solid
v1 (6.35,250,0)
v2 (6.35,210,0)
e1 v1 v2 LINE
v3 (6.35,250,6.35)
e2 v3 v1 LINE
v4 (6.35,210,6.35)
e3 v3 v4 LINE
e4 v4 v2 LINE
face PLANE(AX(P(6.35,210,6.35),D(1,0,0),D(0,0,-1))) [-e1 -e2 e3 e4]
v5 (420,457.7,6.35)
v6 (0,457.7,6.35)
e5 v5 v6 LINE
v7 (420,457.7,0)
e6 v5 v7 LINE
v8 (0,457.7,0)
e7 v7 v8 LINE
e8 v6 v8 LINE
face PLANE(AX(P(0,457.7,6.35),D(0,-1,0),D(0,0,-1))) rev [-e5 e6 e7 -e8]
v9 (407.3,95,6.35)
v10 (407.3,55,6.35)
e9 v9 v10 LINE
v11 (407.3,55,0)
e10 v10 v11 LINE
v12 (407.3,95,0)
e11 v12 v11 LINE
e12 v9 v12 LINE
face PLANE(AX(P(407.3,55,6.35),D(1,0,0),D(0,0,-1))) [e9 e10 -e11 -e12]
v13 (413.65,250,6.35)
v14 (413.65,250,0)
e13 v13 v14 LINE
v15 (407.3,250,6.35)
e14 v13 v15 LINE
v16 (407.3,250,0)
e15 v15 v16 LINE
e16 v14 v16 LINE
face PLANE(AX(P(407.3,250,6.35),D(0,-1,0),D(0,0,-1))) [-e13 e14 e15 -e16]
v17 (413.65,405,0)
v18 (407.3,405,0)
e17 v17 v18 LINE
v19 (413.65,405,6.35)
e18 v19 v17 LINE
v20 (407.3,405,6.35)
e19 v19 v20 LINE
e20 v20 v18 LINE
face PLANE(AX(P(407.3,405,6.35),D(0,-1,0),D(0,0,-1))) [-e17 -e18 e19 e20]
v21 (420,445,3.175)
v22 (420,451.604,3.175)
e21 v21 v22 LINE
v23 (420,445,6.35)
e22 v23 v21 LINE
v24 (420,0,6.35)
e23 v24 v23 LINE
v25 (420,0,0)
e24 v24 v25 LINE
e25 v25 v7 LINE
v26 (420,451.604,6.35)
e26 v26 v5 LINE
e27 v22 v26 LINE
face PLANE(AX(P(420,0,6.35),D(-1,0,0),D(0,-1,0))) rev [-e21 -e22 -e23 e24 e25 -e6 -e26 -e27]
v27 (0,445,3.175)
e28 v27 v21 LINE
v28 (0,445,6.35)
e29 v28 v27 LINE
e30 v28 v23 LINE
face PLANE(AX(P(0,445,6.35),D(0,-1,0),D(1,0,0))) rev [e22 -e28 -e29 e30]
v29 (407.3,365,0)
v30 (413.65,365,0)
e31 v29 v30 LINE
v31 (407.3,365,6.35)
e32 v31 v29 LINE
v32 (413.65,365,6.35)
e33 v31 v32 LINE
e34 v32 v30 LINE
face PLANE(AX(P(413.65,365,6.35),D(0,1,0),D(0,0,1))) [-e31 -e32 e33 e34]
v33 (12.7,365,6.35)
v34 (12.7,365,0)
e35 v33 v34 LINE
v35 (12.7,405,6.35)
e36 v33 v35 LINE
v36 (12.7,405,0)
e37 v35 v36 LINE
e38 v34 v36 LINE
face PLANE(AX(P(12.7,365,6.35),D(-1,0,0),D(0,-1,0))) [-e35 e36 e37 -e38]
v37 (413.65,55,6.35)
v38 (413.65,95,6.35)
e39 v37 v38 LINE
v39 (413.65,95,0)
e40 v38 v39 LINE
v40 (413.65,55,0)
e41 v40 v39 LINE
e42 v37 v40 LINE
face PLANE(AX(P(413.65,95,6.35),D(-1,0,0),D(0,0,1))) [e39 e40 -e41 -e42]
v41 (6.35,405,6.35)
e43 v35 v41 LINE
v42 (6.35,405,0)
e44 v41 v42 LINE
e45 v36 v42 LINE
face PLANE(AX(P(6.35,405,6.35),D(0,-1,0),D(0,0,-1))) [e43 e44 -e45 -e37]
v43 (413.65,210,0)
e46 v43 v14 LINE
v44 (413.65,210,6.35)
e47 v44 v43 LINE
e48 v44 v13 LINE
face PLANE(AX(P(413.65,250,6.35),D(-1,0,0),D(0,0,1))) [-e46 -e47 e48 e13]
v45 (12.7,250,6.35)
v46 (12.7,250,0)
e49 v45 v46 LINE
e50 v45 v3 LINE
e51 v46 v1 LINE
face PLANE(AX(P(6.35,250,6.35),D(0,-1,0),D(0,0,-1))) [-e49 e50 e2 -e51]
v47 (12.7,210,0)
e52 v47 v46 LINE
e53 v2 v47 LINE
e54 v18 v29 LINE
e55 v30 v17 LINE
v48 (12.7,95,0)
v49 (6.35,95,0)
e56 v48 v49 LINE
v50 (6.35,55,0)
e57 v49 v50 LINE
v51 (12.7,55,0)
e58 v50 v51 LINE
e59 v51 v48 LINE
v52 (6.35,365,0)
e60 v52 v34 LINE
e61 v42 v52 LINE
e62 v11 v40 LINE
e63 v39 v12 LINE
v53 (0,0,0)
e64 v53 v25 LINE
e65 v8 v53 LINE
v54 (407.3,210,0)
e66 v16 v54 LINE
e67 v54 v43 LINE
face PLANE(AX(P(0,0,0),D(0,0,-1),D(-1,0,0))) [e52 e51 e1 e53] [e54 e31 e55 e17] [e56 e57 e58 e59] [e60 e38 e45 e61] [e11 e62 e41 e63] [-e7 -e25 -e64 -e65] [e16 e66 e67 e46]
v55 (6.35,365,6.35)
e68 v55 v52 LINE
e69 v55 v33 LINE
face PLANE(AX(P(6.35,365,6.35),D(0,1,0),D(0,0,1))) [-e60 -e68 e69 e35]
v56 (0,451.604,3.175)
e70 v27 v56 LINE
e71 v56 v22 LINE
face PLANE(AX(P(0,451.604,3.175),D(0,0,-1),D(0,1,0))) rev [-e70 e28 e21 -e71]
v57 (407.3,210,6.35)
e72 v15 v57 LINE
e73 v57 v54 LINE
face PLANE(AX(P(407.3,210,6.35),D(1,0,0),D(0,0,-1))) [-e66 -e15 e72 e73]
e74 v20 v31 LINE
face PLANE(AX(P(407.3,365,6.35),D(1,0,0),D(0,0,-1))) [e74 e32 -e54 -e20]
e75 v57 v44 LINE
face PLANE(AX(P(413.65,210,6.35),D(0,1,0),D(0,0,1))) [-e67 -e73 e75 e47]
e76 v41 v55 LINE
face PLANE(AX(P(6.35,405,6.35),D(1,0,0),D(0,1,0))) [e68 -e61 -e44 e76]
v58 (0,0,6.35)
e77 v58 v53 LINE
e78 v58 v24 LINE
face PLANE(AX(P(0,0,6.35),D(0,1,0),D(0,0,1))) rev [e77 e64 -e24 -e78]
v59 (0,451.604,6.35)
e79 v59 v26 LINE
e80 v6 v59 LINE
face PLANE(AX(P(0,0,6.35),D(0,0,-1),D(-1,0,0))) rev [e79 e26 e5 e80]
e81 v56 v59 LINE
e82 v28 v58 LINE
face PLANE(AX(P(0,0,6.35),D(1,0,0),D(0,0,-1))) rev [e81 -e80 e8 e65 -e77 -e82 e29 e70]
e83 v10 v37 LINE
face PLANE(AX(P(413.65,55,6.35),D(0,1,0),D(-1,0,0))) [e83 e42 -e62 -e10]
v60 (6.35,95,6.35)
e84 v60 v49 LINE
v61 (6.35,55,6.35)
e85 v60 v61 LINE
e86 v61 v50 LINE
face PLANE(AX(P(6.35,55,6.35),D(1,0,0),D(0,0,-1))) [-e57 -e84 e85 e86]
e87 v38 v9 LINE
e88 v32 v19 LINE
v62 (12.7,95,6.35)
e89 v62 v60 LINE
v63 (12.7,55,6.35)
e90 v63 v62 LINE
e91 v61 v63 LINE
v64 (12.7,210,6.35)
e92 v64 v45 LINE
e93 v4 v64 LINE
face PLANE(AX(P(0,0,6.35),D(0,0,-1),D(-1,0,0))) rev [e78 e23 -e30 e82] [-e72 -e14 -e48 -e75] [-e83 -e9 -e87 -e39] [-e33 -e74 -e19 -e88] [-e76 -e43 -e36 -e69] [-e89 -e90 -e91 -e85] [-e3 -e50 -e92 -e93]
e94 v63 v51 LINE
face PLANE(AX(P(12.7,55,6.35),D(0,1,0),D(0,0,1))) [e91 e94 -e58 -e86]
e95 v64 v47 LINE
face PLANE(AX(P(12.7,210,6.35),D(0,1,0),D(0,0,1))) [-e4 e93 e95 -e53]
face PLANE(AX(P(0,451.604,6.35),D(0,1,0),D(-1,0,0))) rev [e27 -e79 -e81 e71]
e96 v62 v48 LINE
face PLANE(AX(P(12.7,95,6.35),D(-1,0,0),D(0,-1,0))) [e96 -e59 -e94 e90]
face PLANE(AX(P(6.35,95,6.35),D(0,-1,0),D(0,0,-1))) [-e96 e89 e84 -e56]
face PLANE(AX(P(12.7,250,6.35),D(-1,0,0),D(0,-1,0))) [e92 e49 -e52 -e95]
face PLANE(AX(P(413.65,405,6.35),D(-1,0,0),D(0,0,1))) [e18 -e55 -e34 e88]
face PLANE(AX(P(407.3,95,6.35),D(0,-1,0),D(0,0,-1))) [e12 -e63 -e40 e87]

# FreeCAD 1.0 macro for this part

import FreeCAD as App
import Part
import Sketcher

V = App.Vector
Q = App.Units.Quantity


def add_polygon(sketch, points):
    """Adds a closed chain of lines whose ends are joined by coincident constraints."""
    first, n = sketch.GeometryCount, len(points)
    for a, b in zip(points, points[1:] + points[:1]):
        sketch.addGeometry(Part.LineSegment(App.Vector(*a, 0), App.Vector(*b, 0)), False)
    for i in range(n):
        sketch.addConstraint(Sketcher.Constraint("Coincident", first + i, 2, first + (i + 1) % n, 1))

doc = App.newDocument("Part")
params = doc.addObject("Spreadsheet::Sheet", "Params")
for row, (alias, value) in enumerate([
    ("sketch1_width", "420 mm"),
    ("sketch1_height", "40 mm"),
    ("sketch1_height2", "457.7 mm"),
    ("sketch1_width2", "6.35 mm"),
    ("pad1_length", "6.35 mm"),
], start=1):
    params.set(f"A{row}", alias)
    params.set(f"B{row}", "=" + value)
    params.setAlias(f"B{row}", alias)

body = doc.addObject("PartDesign::Body", "Body")

# Sketch on XY plane
sketch1 = body.newObject("Sketcher::SketchObject", "Sketch")
sketch1.AttachmentSupport = (doc.getObject("XY_Plane"), [""])
sketch1.MapMode = "FlatFace"
add_polygon(sketch1, [(0, 0), (420, 0), (420, 458), (0, 458)])  # lines 0-3
add_polygon(sketch1, [(13, 55), (6, 55), (6, 95), (13, 95)])  # lines 4-7
add_polygon(sketch1, [(414, 55), (407, 55), (407, 95), (414, 95)])  # lines 8-11
add_polygon(sketch1, [(13, 210), (6, 210), (6, 250), (13, 250)])  # lines 12-15
add_polygon(sketch1, [(13, 365), (6, 365), (6, 405), (13, 405)])  # lines 16-19
add_polygon(sketch1, [(414, 210), (407, 210), (407, 250), (414, 250)])  # lines 20-23
add_polygon(sketch1, [(414, 365), (407, 365), (407, 405), (414, 405)])  # lines 24-27
sketch1.addConstraint([
    Sketcher.Constraint("Horizontal", 0),
    Sketcher.Constraint("Vertical", 1),
    Sketcher.Constraint("Horizontal", 2),
    Sketcher.Constraint("Vertical", 3),
    Sketcher.Constraint("Horizontal", 4),
    Sketcher.Constraint("Vertical", 5),
    Sketcher.Constraint("Horizontal", 6),
    Sketcher.Constraint("Vertical", 7),
    Sketcher.Constraint("Horizontal", 8),
    Sketcher.Constraint("Vertical", 9),
    Sketcher.Constraint("Horizontal", 10),
    Sketcher.Constraint("Vertical", 11),
    Sketcher.Constraint("Horizontal", 12),
    Sketcher.Constraint("Vertical", 13),
    Sketcher.Constraint("Horizontal", 14),
    Sketcher.Constraint("Vertical", 15),
    Sketcher.Constraint("Horizontal", 16),
    Sketcher.Constraint("Vertical", 17),
    Sketcher.Constraint("Horizontal", 18),
    Sketcher.Constraint("Vertical", 19),
    Sketcher.Constraint("Horizontal", 20),
    Sketcher.Constraint("Vertical", 21),
    Sketcher.Constraint("Horizontal", 22),
    Sketcher.Constraint("Vertical", 23),
    Sketcher.Constraint("Horizontal", 24),
    Sketcher.Constraint("Vertical", 25),
    Sketcher.Constraint("Horizontal", 26),
    Sketcher.Constraint("Vertical", 27),
    Sketcher.Constraint("Coincident", 3, 2, -1, 1),
    Sketcher.Constraint("Horizontal", 7, 2, 8, 2),
    Sketcher.Constraint("Horizontal", 6, 2, 9, 2),
    Sketcher.Constraint("Horizontal", 15, 2, 20, 2),
    Sketcher.Constraint("Horizontal", 14, 2, 21, 2),
    Sketcher.Constraint("Horizontal", 19, 2, 24, 2),
    Sketcher.Constraint("Horizontal", 18, 2, 25, 2),
    Sketcher.Constraint("Vertical", 5, 2, 12, 2),
    Sketcher.Constraint("Vertical", 7, 2, 14, 2),
    Sketcher.Constraint("Vertical", 13, 2, 16, 2),
    Sketcher.Constraint("Vertical", 15, 2, 18, 2),
    Sketcher.Constraint("Vertical", 9, 2, 20, 2),
    Sketcher.Constraint("Vertical", 11, 2, 22, 2),
    Sketcher.Constraint("Vertical", 21, 2, 24, 2),
    Sketcher.Constraint("Vertical", 23, 2, 26, 2),
    Sketcher.Constraint("Equal", 6, 8),
    Sketcher.Constraint("Equal", 11, 13),
    Sketcher.Constraint("Equal", 15, 17),
    Sketcher.Constraint("DistanceX", 0, 1, 0, 2, Q("420 mm")),
    Sketcher.Constraint("DistanceY", 5, 1, 5, 2, Q("40 mm")),
    Sketcher.Constraint("DistanceY", 1, 1, 1, 2, Q("457.7 mm")),
    Sketcher.Constraint("DistanceY", -1, 1, 4, 2, Q("55 mm")),
    Sketcher.Constraint("DistanceY", -1, 1, 12, 2, Q("210 mm")),
    Sketcher.Constraint("DistanceY", -1, 1, 16, 2, Q("365 mm")),
    Sketcher.Constraint("DistanceX", 4, 2, 4, 1, Q("6.35 mm")),
    Sketcher.Constraint("DistanceX", -1, 1, 6, 2, Q("12.7 mm")),
    Sketcher.Constraint("DistanceX", -1, 1, 8, 2, Q("407.3 mm")),
])
sketch1.setExpression("Constraints[74]", "Params.sketch1_width")
sketch1.setExpression("Constraints[75]", "Params.sketch1_height")
sketch1.setExpression("Constraints[76]", "Params.sketch1_height2")
sketch1.setExpression("Constraints[80]", "Params.sketch1_width2")
pad1 = body.newObject("PartDesign::Pad", "Pad")
pad1.Profile = sketch1
pad1.setExpression("Length", "Params.pad1_length")

# Sketch on YZ plane
sketch2 = body.newObject("Sketcher::SketchObject", "Sketch001")
sketch2.AttachmentSupport = (doc.getObject("YZ_Plane"), [""])
sketch2.MapMode = "FlatFace"
sketch2.AttachmentOffset = App.Placement(V(0, 0, 420), App.Rotation())
add_polygon(sketch2, [(451.6, 6.3), (445, 6.3), (445, 3.2), (451.6, 3.2)])  # lines 0-3
sketch2.addConstraint([
    Sketcher.Constraint("Horizontal", 0),
    Sketcher.Constraint("Vertical", 1),
    Sketcher.Constraint("Horizontal", 2),
    Sketcher.Constraint("Vertical", 3),
    Sketcher.Constraint("DistanceX", -1, 1, 0, 2, Q("445 mm")),
    Sketcher.Constraint("DistanceX", 0, 2, 0, 1, Q("6.604 mm")),
    Sketcher.Constraint("DistanceY", 1, 2, 1, 1, Q("3.175 mm")),
    Sketcher.Constraint("DistanceY", -1, 1, 0, 2, Q("6.35 mm")),
])
pocket1 = body.newObject("PartDesign::Pocket", "Pocket")
pocket1.Profile = sketch2
pocket1.Type = "ThroughAll"

doc.recompute()
